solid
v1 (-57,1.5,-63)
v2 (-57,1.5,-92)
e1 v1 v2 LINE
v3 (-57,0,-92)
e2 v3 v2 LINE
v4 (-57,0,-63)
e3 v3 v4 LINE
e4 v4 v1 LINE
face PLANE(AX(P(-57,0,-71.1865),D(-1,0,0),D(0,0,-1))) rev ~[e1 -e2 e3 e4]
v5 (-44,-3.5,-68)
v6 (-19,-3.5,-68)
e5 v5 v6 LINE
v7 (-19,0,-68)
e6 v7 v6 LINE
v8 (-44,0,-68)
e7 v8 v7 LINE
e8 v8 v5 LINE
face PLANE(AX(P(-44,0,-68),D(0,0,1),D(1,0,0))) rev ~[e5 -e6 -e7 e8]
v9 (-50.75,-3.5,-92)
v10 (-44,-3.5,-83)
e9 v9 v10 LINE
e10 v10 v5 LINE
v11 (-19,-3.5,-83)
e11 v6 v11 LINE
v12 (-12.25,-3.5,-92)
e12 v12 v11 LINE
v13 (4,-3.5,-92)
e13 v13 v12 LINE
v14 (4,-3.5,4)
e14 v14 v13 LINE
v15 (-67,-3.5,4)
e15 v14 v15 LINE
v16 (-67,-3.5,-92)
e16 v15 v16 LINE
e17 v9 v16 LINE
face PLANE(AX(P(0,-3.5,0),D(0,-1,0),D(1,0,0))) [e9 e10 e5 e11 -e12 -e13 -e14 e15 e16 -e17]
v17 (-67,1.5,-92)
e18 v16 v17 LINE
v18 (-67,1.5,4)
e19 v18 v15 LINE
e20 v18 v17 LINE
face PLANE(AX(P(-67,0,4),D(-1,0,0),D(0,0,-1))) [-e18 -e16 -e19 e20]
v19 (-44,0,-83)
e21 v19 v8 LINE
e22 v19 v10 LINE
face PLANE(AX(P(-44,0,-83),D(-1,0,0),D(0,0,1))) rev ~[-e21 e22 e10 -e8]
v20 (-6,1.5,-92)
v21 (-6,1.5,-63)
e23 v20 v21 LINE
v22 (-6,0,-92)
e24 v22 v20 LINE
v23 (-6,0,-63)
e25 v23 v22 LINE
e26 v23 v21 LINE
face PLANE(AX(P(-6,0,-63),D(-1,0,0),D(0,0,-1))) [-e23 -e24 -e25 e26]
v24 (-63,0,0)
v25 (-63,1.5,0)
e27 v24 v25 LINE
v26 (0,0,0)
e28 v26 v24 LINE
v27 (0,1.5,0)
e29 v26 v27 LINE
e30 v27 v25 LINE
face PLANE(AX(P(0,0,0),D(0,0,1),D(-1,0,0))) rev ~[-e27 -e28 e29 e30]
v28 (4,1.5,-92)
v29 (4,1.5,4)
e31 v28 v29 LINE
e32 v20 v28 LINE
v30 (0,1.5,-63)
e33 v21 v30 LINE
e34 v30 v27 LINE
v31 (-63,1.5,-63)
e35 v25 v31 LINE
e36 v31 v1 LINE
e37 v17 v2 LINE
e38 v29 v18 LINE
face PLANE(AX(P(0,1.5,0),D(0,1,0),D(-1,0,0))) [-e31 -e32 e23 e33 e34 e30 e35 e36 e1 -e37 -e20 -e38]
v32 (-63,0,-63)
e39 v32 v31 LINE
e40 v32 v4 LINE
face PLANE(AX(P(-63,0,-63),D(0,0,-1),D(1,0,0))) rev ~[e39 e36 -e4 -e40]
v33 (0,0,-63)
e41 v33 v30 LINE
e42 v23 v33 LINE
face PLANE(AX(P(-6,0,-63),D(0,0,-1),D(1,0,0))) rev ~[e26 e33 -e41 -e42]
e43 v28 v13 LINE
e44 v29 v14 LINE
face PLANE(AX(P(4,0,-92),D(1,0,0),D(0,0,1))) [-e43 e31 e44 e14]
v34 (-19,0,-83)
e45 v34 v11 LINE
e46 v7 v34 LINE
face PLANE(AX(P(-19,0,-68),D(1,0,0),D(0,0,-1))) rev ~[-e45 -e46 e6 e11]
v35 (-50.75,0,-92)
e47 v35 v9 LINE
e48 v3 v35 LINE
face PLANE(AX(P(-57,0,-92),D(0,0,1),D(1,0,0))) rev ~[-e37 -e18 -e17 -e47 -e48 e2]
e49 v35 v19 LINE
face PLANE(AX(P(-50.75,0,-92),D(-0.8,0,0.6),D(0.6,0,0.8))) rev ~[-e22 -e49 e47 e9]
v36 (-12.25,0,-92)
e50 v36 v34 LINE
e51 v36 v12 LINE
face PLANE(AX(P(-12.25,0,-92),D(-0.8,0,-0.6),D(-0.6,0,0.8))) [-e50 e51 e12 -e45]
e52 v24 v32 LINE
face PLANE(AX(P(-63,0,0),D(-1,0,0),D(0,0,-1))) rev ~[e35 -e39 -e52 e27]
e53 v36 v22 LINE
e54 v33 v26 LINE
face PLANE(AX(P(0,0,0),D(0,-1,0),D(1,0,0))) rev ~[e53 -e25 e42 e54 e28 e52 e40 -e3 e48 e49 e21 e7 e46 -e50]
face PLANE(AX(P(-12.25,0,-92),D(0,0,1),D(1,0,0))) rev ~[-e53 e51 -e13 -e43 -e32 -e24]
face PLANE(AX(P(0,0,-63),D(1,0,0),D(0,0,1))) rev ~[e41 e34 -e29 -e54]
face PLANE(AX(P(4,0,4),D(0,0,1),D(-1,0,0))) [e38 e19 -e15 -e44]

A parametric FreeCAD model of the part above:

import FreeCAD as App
import Part
import Sketcher

doc = App.newDocument("Part")
body = doc.addObject("PartDesign::Body", "Body")

# Sketch on XZ plane
sketch1 = body.newObject("Sketcher::SketchObject", "Sketch")
sketch1.AttachmentSupport = (doc.getObject("XZ_Plane"), [""])
sketch1.MapMode = "FlatFace"
sketch1.addGeometry(Part.LineSegment(App.Vector(0, -63, 0), App.Vector(0, 0, 0)), False)
sketch1.addGeometry(Part.LineSegment(App.Vector(0, 0, 0), App.Vector(-63, 0, 0)), False)
sketch1.addGeometry(Part.LineSegment(App.Vector(-63, 0, 0), App.Vector(-63, -63, 0)), False)
sketch1.addGeometry(Part.LineSegment(App.Vector(-63, -63, 0), App.Vector(-57, -63, 0)), False)
sketch1.addGeometry(Part.LineSegment(App.Vector(-57, -63, 0), App.Vector(-57, -92, 0)), False)
sketch1.addGeometry(Part.LineSegment(App.Vector(-57, -92, 0), App.Vector(-67, -92, 0)), False)
sketch1.addGeometry(Part.LineSegment(App.Vector(-67, -92, 0), App.Vector(-67, 4, 0)), False)
sketch1.addGeometry(Part.LineSegment(App.Vector(-67, 4, 0), App.Vector(4, 4, 0)), False)
sketch1.addGeometry(Part.LineSegment(App.Vector(4, 4, 0), App.Vector(4, -92, 0)), False)
sketch1.addGeometry(Part.LineSegment(App.Vector(4, -92, 0), App.Vector(-6, -92, 0)), False)
sketch1.addGeometry(Part.LineSegment(App.Vector(-6, -92, 0), App.Vector(-6, -63, 0)), False)
sketch1.addGeometry(Part.LineSegment(App.Vector(-6, -63, 0), App.Vector(0, -63, 0)), False)
sketch1.addConstraint(Sketcher.Constraint("Coincident", 0, 2, 1, 1))
sketch1.addConstraint(Sketcher.Constraint("Coincident", 1, 2, 2, 1))
sketch1.addConstraint(Sketcher.Constraint("Coincident", 2, 2, 3, 1))
sketch1.addConstraint(Sketcher.Constraint("Coincident", 3, 2, 4, 1))
sketch1.addConstraint(Sketcher.Constraint("Coincident", 4, 2, 5, 1))
sketch1.addConstraint(Sketcher.Constraint("Coincident", 5, 2, 6, 1))
sketch1.addConstraint(Sketcher.Constraint("Coincident", 6, 2, 7, 1))
sketch1.addConstraint(Sketcher.Constraint("Coincident", 7, 2, 8, 1))
sketch1.addConstraint(Sketcher.Constraint("Coincident", 8, 2, 9, 1))
sketch1.addConstraint(Sketcher.Constraint("Coincident", 9, 2, 10, 1))
sketch1.addConstraint(Sketcher.Constraint("Coincident", 10, 2, 11, 1))
sketch1.addConstraint(Sketcher.Constraint("Coincident", 11, 2, 0, 1))
sketch1.addConstraint(Sketcher.Constraint("Vertical", 0))
sketch1.addConstraint(Sketcher.Constraint("Horizontal", 1))
sketch1.addConstraint(Sketcher.Constraint("Vertical", 2))
sketch1.addConstraint(Sketcher.Constraint("Horizontal", 3))
sketch1.addConstraint(Sketcher.Constraint("Vertical", 4))
sketch1.addConstraint(Sketcher.Constraint("Horizontal", 5))
sketch1.addConstraint(Sketcher.Constraint("Vertical", 6))
sketch1.addConstraint(Sketcher.Constraint("Horizontal", 7))
sketch1.addConstraint(Sketcher.Constraint("Vertical", 8))
sketch1.addConstraint(Sketcher.Constraint("Horizontal", 9))
sketch1.addConstraint(Sketcher.Constraint("Vertical", 10))
sketch1.addConstraint(Sketcher.Constraint("Horizontal", 11))
sketch1.addConstraint(Sketcher.Constraint("Coincident", 0, 2, -1, 1))
sketch1.addConstraint(Sketcher.Constraint("Horizontal", 5, 2, 8, 2))
sketch1.addConstraint(Sketcher.Constraint("Horizontal", 3, 2, 10, 2))
sketch1.addConstraint(Sketcher.Constraint("Equal", 5, 9))
sketch1.addConstraint(Sketcher.Constraint("Equal", 3, 11))
sketch1.addConstraint(Sketcher.Constraint("Equal", 1, 0))
sketch1.addConstraint(Sketcher.Constraint("DistanceX", 1, 2, 1, 1, 63.0))
sketch1.addConstraint(Sketcher.Constraint("DistanceX", 3, 1, 3, 2, 6.0))
sketch1.addConstraint(Sketcher.Constraint("DistanceX", 5, 2, 5, 1, 10.0))
sketch1.addConstraint(Sketcher.Constraint("DistanceY", 6, 1, 6, 2, 96.0))
sketch1.addConstraint(Sketcher.Constraint("DistanceY", -1, 1, 6, 2, 4.0))
pad1 = body.newObject("PartDesign::Pad", "Pad")
pad1.Profile = sketch1
pad1.Length = 1.5
pad1.Reversed = True

# Sketch on XZ plane
sketch2 = body.newObject("Sketcher::SketchObject", "Sketch001")
sketch2.AttachmentSupport = (doc.getObject("XZ_Plane"), [""])
sketch2.MapMode = "FlatFace"
sketch2.addGeometry(Part.LineSegment(App.Vector(4, -92, 0), App.Vector(4, 4, 0)), False)
sketch2.addGeometry(Part.LineSegment(App.Vector(4, 4, 0), App.Vector(-67, 4, 0)), False)
sketch2.addGeometry(Part.LineSegment(App.Vector(-67, 4, 0), App.Vector(-67, -92, 0)), False)
sketch2.addGeometry(Part.LineSegment(App.Vector(-67, -92, 0), App.Vector(-50.75, -92, 0)), False)
sketch2.addGeometry(Part.LineSegment(App.Vector(-50.75, -92, 0), App.Vector(-44, -83, 0)), False)
sketch2.addGeometry(Part.LineSegment(App.Vector(-44, -83, 0), App.Vector(-44, -68, 0)), False)
sketch2.addGeometry(Part.LineSegment(App.Vector(-44, -68, 0), App.Vector(-19, -68, 0)), False)
sketch2.addGeometry(Part.LineSegment(App.Vector(-19, -68, 0), App.Vector(-19, -83, 0)), False)
sketch2.addGeometry(Part.LineSegment(App.Vector(-19, -83, 0), App.Vector(-12.25, -92, 0)), False)
sketch2.addGeometry(Part.LineSegment(App.Vector(-12.25, -92, 0), App.Vector(4, -92, 0)), False)
sketch2.addConstraint(Sketcher.Constraint("Coincident", 0, 2, 1, 1))
sketch2.addConstraint(Sketcher.Constraint("Coincident", 1, 2, 2, 1))
sketch2.addConstraint(Sketcher.Constraint("Coincident", 2, 2, 3, 1))
sketch2.addConstraint(Sketcher.Constraint("Coincident", 3, 2, 4, 1))
sketch2.addConstraint(Sketcher.Constraint("Coincident", 4, 2, 5, 1))
sketch2.addConstraint(Sketcher.Constraint("Coincident", 5, 2, 6, 1))
sketch2.addConstraint(Sketcher.Constraint("Coincident", 6, 2, 7, 1))
sketch2.addConstraint(Sketcher.Constraint("Coincident", 7, 2, 8, 1))
sketch2.addConstraint(Sketcher.Constraint("Coincident", 8, 2, 9, 1))
sketch2.addConstraint(Sketcher.Constraint("Coincident", 9, 2, 0, 1))
sketch2.addConstraint(Sketcher.Constraint("Vertical", 0))
sketch2.addConstraint(Sketcher.Constraint("Horizontal", 1))
sketch2.addConstraint(Sketcher.Constraint("Vertical", 2))
sketch2.addConstraint(Sketcher.Constraint("Horizontal", 3))
sketch2.addConstraint(Sketcher.Constraint("Vertical", 5))
sketch2.addConstraint(Sketcher.Constraint("Horizontal", 6))
sketch2.addConstraint(Sketcher.Constraint("Vertical", 7))
sketch2.addConstraint(Sketcher.Constraint("Horizontal", 9))
sketch2.addConstraint(Sketcher.Constraint("Horizontal", 4, 2, 7, 2))
sketch2.addConstraint(Sketcher.Constraint("Horizontal", 3, 2, 8, 2))
sketch2.addConstraint(Sketcher.Constraint("Equal", 3, 9))
sketch2.addConstraint(Sketcher.Constraint("Equal", 4, 8))
sketch2.addConstraint(Sketcher.Constraint("DistanceX", 6, 1, 6, 2, 25.0))
sketch2.addConstraint(Sketcher.Constraint("DistanceY", 5, 1, 5, 2, 15.0))
sketch2.addConstraint(Sketcher.Constraint("DistanceY", 3, 2, 5, 2, 24.0))
sketch2.addConstraint(Sketcher.Constraint("DistanceX", 1, 2, 1, 1, 71.0))
sketch2.addConstraint(Sketcher.Constraint("DistanceY", 0, 1, 0, 2, 96.0))
sketch2.addConstraint(Sketcher.Constraint("DistanceX", -1, 1, 0, 2, 4.0))
sketch2.addConstraint(Sketcher.Constraint("DistanceY", -1, 1, 0, 2, 4.0))
sketch2.addConstraint(Sketcher.Constraint("DistanceX", 3, 1, 3, 2, 16.25))
pad2 = body.newObject("PartDesign::Pad", "Pad001")
pad2.Profile = sketch2
pad2.Length = 3.5

doc.recompute()
